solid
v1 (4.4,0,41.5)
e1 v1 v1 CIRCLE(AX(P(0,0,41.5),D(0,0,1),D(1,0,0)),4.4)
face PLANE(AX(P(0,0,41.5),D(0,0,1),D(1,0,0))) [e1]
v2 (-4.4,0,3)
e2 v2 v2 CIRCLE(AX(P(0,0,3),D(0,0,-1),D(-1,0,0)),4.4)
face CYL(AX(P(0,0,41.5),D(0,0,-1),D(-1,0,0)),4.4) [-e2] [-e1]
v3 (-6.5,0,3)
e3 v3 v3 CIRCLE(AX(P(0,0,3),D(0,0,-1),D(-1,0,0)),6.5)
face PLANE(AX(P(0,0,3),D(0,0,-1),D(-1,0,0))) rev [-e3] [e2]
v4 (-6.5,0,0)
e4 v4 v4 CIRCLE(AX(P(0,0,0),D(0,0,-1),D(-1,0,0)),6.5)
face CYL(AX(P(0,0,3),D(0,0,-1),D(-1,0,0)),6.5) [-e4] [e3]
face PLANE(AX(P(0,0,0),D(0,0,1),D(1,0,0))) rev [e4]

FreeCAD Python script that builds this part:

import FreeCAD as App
import Part
import Sketcher
Q = App.Units.Quantity

doc = App.newDocument("Part")
params = doc.addObject("Spreadsheet::Sheet", "Params")
for row, (alias, value) in enumerate([
    ("sketch1_diameter", "8.8 mm"),
    ("pad1_length", "41.5 mm"),
    ("sketch2_diameter", "13 mm"),
    ("pad2_length", "3 mm"),
], start=1):
    params.set(f"A{row}", alias)
    params.set(f"B{row}", "=" + value)
    params.setAlias(f"B{row}", alias)

body = doc.addObject("PartDesign::Body", "Body")

sketch1 = body.newObject("Sketcher::SketchObject", "Sketch")
sketch1.AttachmentSupport = (doc.getObject("XY_Plane"), [""])
sketch1.MapMode = "FlatFace"
sketch1.addGeometry(Part.Circle(App.Vector(0, 0, 0), App.Vector(0, 0, 1), 4.4), False)
sketch1.addConstraint([
    Sketcher.Constraint("Coincident", 0, 3, -1, 1),
    Sketcher.Constraint("Diameter", 0, Q("8.8 mm")),
])
sketch1.setExpression("Constraints[1]", "Params.sketch1_diameter")
pad1 = body.newObject("PartDesign::Pad", "Pad")
pad1.Profile = sketch1
pad1.setExpression("Length", "Params.pad1_length")

sketch2 = body.newObject("Sketcher::SketchObject", "Sketch001")
sketch2.AttachmentSupport = (doc.getObject("XY_Plane"), [""])
sketch2.MapMode = "FlatFace"
sketch2.addGeometry(Part.Circle(App.Vector(0, 0, 0), App.Vector(0, 0, 1), 6), False)
sketch2.addConstraint([
    Sketcher.Constraint("Coincident", 0, 3, -1, 1),
    Sketcher.Constraint("Diameter", 0, Q("13 mm")),
])
sketch2.setExpression("Constraints[1]", "Params.sketch2_diameter")
pad2 = body.newObject("PartDesign::Pad", "Pad001")
pad2.Profile = sketch2
pad2.setExpression("Length", "Params.pad2_length")

doc.recompute()
